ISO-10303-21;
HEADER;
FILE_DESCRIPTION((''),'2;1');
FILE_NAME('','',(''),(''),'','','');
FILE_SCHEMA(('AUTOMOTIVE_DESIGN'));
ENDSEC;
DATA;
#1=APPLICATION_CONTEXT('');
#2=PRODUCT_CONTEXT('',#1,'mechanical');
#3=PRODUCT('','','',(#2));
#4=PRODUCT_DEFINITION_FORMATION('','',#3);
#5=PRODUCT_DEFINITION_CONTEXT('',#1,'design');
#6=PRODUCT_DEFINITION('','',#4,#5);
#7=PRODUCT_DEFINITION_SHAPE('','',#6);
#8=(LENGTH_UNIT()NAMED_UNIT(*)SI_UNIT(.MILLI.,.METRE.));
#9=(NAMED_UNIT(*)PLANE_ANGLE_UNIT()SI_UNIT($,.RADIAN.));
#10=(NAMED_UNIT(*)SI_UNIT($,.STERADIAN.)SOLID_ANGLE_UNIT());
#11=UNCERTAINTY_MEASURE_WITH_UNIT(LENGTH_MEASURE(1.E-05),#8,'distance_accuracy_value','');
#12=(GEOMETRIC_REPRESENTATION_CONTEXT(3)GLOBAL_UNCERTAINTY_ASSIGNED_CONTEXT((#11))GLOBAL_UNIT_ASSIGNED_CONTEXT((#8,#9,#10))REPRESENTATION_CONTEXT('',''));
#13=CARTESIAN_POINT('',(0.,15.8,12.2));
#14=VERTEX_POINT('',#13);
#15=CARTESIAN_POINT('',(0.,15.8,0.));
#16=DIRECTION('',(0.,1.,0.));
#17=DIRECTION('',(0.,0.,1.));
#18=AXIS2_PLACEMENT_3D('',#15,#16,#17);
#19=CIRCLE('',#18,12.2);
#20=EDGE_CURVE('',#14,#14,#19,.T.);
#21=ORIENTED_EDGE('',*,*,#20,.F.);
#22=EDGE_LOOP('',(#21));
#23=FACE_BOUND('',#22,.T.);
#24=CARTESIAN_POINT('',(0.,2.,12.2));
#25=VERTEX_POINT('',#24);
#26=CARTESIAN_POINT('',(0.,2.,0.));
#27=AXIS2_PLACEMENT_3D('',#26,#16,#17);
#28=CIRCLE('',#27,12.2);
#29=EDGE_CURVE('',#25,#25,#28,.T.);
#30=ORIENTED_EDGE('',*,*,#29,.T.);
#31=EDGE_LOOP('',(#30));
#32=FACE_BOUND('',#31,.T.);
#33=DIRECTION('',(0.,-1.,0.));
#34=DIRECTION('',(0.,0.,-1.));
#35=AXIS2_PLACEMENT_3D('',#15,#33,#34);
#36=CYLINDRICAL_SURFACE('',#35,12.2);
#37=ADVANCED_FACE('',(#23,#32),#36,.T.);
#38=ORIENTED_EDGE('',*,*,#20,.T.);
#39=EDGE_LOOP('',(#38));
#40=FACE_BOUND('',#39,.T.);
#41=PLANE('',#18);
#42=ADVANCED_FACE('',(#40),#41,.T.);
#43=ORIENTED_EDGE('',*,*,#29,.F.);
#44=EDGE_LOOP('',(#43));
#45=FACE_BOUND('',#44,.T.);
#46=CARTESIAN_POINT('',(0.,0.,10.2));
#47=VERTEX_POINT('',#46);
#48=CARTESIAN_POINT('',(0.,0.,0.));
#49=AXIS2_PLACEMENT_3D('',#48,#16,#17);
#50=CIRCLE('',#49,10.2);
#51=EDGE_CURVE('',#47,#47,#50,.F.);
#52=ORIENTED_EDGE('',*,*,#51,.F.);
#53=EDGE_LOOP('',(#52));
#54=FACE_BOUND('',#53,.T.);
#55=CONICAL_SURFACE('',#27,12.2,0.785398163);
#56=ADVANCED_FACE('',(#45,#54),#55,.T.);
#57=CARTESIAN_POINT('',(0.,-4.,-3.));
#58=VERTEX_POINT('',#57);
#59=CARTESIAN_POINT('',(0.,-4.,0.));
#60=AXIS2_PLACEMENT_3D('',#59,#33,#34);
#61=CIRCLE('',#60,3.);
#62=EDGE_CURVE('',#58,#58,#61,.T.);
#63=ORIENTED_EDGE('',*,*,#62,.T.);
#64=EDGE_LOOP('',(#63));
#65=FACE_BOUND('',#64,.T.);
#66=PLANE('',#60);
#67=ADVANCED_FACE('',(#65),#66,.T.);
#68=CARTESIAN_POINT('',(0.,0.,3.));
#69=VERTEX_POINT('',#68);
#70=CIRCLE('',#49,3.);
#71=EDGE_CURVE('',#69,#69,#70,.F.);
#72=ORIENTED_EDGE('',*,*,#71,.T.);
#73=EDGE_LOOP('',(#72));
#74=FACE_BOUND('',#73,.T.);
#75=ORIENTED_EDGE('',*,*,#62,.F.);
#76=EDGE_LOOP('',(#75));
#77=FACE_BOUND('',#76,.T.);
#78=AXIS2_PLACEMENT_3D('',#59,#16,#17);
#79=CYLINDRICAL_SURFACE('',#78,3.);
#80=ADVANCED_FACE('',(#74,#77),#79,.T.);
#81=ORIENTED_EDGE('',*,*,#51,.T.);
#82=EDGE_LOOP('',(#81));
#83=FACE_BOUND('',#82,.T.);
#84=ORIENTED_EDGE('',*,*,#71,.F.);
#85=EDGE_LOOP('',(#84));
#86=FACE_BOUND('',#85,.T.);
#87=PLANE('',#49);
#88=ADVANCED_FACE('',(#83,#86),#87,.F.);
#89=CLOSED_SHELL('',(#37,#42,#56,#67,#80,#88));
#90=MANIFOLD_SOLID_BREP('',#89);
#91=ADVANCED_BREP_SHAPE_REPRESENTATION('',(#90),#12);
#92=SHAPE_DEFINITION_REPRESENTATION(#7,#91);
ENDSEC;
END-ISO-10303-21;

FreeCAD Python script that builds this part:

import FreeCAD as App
import Part
import Sketcher
Q = App.Units.Quantity


def edges_at(feature, points):
    """Names of the edges that pass closest to the given points."""
    edges = feature.Shape.Edges
    near = lambda p: min(range(len(edges)), key=lambda i: edges[i].distToShape(Part.Vertex(*p))[0])
    return sorted({f"Edge{near(p) + 1}" for p in points})

doc = App.newDocument("Part")
body = doc.addObject("PartDesign::Body", "Body")

# Sketch on XZ plane
sketch1 = body.newObject("Sketcher::SketchObject", "Sketch")
sketch1.AttachmentSupport = (doc.getObject("XZ_Plane"), [""])
sketch1.MapMode = "FlatFace"
sketch1.addGeometry(Part.Circle(App.Vector(0, 0, 0), App.Vector(0, 0, 1), 12.2), False)
sketch1.addConstraint([
    Sketcher.Constraint("Coincident", 0, 3, -1, 1),
    Sketcher.Constraint("Diameter", 0, Q("24.4 mm")),
])
pad1 = body.newObject("PartDesign::Pad", "Pad")
pad1.Profile = sketch1
pad1.Length = 15.8
pad1.Reversed = True
doc.recompute()

chamfer = body.newObject("PartDesign::Chamfer", "Chamfer")
chamfer.Base = (pad1, edges_at(pad1, [(0, 0, -12.2)]))
chamfer.Size = 2

# Sketch on XZ plane
sketch2 = body.newObject("Sketcher::SketchObject", "Sketch001")
sketch2.AttachmentSupport = (doc.getObject("XZ_Plane"), [""])
sketch2.MapMode = "FlatFace"
sketch2.addGeometry(Part.Circle(App.Vector(0, 0, 0), App.Vector(0, 0, 1), 3), False)
sketch2.addConstraint([
    Sketcher.Constraint("Coincident", 0, 3, -1, 1),
    Sketcher.Constraint("Diameter", 0, Q("6 mm")),
])
pad2 = body.newObject("PartDesign::Pad", "Pad001")
pad2.Profile = sketch2
pad2.Length = 4

doc.recompute()
